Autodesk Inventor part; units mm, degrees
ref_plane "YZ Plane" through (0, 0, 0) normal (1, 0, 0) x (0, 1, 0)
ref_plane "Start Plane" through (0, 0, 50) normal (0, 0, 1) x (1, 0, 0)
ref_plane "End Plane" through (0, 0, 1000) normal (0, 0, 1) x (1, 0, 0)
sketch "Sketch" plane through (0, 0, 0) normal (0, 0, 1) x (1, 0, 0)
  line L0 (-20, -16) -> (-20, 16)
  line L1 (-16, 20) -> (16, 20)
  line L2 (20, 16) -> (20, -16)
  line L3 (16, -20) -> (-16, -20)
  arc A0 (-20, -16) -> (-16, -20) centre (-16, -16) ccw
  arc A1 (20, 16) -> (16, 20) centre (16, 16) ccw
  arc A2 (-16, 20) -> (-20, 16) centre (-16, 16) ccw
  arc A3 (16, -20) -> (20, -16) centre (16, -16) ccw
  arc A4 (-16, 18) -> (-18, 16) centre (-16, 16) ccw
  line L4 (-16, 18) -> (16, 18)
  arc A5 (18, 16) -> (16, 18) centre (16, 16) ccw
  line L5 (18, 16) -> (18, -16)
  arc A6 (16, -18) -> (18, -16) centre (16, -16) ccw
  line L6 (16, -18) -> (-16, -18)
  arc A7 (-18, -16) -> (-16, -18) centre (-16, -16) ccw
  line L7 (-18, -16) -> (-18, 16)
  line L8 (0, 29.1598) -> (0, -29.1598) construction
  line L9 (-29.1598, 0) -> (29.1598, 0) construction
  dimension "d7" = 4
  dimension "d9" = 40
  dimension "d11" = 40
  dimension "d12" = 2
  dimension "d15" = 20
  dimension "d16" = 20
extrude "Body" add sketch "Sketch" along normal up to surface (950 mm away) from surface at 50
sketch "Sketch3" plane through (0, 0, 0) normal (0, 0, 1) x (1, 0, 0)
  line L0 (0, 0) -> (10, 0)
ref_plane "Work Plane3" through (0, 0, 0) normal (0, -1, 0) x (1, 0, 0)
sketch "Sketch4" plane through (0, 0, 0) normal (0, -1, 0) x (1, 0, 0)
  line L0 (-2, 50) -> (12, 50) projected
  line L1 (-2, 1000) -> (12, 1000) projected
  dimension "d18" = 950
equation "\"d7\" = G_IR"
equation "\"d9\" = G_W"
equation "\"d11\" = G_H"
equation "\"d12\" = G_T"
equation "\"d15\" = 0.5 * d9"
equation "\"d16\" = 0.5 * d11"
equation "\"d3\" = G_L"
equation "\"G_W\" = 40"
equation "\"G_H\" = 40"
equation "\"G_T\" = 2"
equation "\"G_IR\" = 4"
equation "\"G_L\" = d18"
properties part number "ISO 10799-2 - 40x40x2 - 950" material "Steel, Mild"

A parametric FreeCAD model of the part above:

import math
import FreeCAD as App
import Part
import Sketcher

doc = App.newDocument("Part")
params = doc.addObject("Spreadsheet::Sheet", "Params")
for row, (alias, value) in enumerate([
    ("sketch1_radius", "4 mm"),
    ("sketch1_radius2", "2 mm"),
    ("pad1_length", "950 mm"),
], start=1):
    params.set(f"A{row}", alias)
    params.set(f"B{row}", "=" + value)
    params.setAlias(f"B{row}", alias)

body = doc.addObject("PartDesign::Body", "Body")

# Sketch on XY plane
sketch1 = body.newObject("Sketcher::SketchObject", "Sketch")
sketch1.AttachmentSupport = (doc.getObject("XY_Plane"), [""])
sketch1.MapMode = "FlatFace"
sketch1.AttachmentOffset = App.Placement(App.Vector(0, 0, 50), App.Rotation())
sketch1.addGeometry([
    Part.LineSegment(App.Vector(-20, 16, 0), App.Vector(-20, -16, 0)),  # 0
    Part.ArcOfCircle(Part.Circle(App.Vector(-16, -16, 0), App.Vector(0, 0, 1), 4), math.radians(180), math.radians(270)),  # 1
    Part.LineSegment(App.Vector(-16, -20, 0), App.Vector(16, -20, 0)),  # 2
    Part.ArcOfCircle(Part.Circle(App.Vector(16, -16, 0), App.Vector(0, 0, 1), 4), math.radians(-90), math.radians(0)),  # 3
    Part.LineSegment(App.Vector(20, -16, 0), App.Vector(20, 16, 0)),  # 4
    Part.ArcOfCircle(Part.Circle(App.Vector(16, 16, 0), App.Vector(0, 0, 1), 4), math.radians(0), math.radians(90)),  # 5
    Part.LineSegment(App.Vector(16, 20, 0), App.Vector(-16, 20, 0)),  # 6
    Part.ArcOfCircle(Part.Circle(App.Vector(-16, 16, 0), App.Vector(0, 0, 1), 4), math.radians(90), math.radians(180)),  # 7
    Part.ArcOfCircle(Part.Circle(App.Vector(-16, 16, 0), App.Vector(0, 0, 1), 2), math.radians(90), math.radians(180)),  # 8
    Part.LineSegment(App.Vector(-16, 18, 0), App.Vector(16, 18, 0)),  # 9
    Part.ArcOfCircle(Part.Circle(App.Vector(16, 16, 0), App.Vector(0, 0, 1), 2), math.radians(0), math.radians(90)),  # 10
    Part.LineSegment(App.Vector(18, 16, 0), App.Vector(18, -16, 0)),  # 11
    Part.ArcOfCircle(Part.Circle(App.Vector(16, -16, 0), App.Vector(0, 0, 1), 2), math.radians(-90), math.radians(0)),  # 12
    Part.LineSegment(App.Vector(16, -18, 0), App.Vector(-16, -18, 0)),  # 13
    Part.ArcOfCircle(Part.Circle(App.Vector(-16, -16, 0), App.Vector(0, 0, 1), 2), math.radians(180), math.radians(270)),  # 14
    Part.LineSegment(App.Vector(-18, -16, 0), App.Vector(-18, 16, 0)),  # 15
], False)
sketch1.addConstraint([
    Sketcher.Constraint("Tangent", 0, 2, 1, 1),
    Sketcher.Constraint("Tangent", 1, 2, 2, 1),
    Sketcher.Constraint("Tangent", 2, 2, 3, 1),
    Sketcher.Constraint("Tangent", 3, 2, 4, 1),
    Sketcher.Constraint("Tangent", 4, 2, 5, 1),
    Sketcher.Constraint("Tangent", 5, 2, 6, 1),
    Sketcher.Constraint("Tangent", 6, 2, 7, 1),
    Sketcher.Constraint("Tangent", 7, 2, 0, 1),
    Sketcher.Constraint("Tangent", 8, 1, 9, 1),
    Sketcher.Constraint("Tangent", 9, 2, 10, 2),
    Sketcher.Constraint("Tangent", 10, 1, 11, 1),
    Sketcher.Constraint("Tangent", 11, 2, 12, 2),
    Sketcher.Constraint("Tangent", 12, 1, 13, 1),
    Sketcher.Constraint("Tangent", 13, 2, 14, 2),
    Sketcher.Constraint("Tangent", 14, 1, 15, 1),
    Sketcher.Constraint("Tangent", 15, 2, 8, 2),
    Sketcher.Constraint("Vertical", 0),
    Sketcher.Constraint("Horizontal", 2),
    Sketcher.Constraint("Vertical", 4),
    Sketcher.Constraint("Horizontal", 6),
    Sketcher.Constraint("Horizontal", 9),
    Sketcher.Constraint("Vertical", 11),
    Sketcher.Constraint("Horizontal", 13),
    Sketcher.Constraint("Vertical", 15),
    Sketcher.Constraint("Coincident", 8, 3, 7, 3),
    Sketcher.Constraint("Coincident", 10, 3, 5, 3),
    Sketcher.Constraint("Coincident", 12, 3, 3, 3),
    Sketcher.Constraint("Equal", 1, 3),
    Sketcher.Constraint("Equal", 3, 5),
    Sketcher.Constraint("Equal", 5, 7),
    Sketcher.Constraint("Equal", 12, 14),
    Sketcher.Constraint("Symmetric", 1, 3, 5, 3, -1, 1),
    Sketcher.Constraint("Equal", 13, 0),
    Sketcher.Constraint("Radius", 1, 4.0),
    Sketcher.Constraint("Radius", 8, 2.0),
    Sketcher.Constraint("DistanceX", 0, 2, -1, 1, 20.0),
])
sketch1.setExpression("Constraints[33]", "Params.sketch1_radius")
sketch1.setExpression("Constraints[34]", "Params.sketch1_radius2")
pad1 = body.newObject("PartDesign::Pad", "Pad")
pad1.Profile = sketch1
pad1.setExpression("Length", "Params.pad1_length")

doc.recompute()
